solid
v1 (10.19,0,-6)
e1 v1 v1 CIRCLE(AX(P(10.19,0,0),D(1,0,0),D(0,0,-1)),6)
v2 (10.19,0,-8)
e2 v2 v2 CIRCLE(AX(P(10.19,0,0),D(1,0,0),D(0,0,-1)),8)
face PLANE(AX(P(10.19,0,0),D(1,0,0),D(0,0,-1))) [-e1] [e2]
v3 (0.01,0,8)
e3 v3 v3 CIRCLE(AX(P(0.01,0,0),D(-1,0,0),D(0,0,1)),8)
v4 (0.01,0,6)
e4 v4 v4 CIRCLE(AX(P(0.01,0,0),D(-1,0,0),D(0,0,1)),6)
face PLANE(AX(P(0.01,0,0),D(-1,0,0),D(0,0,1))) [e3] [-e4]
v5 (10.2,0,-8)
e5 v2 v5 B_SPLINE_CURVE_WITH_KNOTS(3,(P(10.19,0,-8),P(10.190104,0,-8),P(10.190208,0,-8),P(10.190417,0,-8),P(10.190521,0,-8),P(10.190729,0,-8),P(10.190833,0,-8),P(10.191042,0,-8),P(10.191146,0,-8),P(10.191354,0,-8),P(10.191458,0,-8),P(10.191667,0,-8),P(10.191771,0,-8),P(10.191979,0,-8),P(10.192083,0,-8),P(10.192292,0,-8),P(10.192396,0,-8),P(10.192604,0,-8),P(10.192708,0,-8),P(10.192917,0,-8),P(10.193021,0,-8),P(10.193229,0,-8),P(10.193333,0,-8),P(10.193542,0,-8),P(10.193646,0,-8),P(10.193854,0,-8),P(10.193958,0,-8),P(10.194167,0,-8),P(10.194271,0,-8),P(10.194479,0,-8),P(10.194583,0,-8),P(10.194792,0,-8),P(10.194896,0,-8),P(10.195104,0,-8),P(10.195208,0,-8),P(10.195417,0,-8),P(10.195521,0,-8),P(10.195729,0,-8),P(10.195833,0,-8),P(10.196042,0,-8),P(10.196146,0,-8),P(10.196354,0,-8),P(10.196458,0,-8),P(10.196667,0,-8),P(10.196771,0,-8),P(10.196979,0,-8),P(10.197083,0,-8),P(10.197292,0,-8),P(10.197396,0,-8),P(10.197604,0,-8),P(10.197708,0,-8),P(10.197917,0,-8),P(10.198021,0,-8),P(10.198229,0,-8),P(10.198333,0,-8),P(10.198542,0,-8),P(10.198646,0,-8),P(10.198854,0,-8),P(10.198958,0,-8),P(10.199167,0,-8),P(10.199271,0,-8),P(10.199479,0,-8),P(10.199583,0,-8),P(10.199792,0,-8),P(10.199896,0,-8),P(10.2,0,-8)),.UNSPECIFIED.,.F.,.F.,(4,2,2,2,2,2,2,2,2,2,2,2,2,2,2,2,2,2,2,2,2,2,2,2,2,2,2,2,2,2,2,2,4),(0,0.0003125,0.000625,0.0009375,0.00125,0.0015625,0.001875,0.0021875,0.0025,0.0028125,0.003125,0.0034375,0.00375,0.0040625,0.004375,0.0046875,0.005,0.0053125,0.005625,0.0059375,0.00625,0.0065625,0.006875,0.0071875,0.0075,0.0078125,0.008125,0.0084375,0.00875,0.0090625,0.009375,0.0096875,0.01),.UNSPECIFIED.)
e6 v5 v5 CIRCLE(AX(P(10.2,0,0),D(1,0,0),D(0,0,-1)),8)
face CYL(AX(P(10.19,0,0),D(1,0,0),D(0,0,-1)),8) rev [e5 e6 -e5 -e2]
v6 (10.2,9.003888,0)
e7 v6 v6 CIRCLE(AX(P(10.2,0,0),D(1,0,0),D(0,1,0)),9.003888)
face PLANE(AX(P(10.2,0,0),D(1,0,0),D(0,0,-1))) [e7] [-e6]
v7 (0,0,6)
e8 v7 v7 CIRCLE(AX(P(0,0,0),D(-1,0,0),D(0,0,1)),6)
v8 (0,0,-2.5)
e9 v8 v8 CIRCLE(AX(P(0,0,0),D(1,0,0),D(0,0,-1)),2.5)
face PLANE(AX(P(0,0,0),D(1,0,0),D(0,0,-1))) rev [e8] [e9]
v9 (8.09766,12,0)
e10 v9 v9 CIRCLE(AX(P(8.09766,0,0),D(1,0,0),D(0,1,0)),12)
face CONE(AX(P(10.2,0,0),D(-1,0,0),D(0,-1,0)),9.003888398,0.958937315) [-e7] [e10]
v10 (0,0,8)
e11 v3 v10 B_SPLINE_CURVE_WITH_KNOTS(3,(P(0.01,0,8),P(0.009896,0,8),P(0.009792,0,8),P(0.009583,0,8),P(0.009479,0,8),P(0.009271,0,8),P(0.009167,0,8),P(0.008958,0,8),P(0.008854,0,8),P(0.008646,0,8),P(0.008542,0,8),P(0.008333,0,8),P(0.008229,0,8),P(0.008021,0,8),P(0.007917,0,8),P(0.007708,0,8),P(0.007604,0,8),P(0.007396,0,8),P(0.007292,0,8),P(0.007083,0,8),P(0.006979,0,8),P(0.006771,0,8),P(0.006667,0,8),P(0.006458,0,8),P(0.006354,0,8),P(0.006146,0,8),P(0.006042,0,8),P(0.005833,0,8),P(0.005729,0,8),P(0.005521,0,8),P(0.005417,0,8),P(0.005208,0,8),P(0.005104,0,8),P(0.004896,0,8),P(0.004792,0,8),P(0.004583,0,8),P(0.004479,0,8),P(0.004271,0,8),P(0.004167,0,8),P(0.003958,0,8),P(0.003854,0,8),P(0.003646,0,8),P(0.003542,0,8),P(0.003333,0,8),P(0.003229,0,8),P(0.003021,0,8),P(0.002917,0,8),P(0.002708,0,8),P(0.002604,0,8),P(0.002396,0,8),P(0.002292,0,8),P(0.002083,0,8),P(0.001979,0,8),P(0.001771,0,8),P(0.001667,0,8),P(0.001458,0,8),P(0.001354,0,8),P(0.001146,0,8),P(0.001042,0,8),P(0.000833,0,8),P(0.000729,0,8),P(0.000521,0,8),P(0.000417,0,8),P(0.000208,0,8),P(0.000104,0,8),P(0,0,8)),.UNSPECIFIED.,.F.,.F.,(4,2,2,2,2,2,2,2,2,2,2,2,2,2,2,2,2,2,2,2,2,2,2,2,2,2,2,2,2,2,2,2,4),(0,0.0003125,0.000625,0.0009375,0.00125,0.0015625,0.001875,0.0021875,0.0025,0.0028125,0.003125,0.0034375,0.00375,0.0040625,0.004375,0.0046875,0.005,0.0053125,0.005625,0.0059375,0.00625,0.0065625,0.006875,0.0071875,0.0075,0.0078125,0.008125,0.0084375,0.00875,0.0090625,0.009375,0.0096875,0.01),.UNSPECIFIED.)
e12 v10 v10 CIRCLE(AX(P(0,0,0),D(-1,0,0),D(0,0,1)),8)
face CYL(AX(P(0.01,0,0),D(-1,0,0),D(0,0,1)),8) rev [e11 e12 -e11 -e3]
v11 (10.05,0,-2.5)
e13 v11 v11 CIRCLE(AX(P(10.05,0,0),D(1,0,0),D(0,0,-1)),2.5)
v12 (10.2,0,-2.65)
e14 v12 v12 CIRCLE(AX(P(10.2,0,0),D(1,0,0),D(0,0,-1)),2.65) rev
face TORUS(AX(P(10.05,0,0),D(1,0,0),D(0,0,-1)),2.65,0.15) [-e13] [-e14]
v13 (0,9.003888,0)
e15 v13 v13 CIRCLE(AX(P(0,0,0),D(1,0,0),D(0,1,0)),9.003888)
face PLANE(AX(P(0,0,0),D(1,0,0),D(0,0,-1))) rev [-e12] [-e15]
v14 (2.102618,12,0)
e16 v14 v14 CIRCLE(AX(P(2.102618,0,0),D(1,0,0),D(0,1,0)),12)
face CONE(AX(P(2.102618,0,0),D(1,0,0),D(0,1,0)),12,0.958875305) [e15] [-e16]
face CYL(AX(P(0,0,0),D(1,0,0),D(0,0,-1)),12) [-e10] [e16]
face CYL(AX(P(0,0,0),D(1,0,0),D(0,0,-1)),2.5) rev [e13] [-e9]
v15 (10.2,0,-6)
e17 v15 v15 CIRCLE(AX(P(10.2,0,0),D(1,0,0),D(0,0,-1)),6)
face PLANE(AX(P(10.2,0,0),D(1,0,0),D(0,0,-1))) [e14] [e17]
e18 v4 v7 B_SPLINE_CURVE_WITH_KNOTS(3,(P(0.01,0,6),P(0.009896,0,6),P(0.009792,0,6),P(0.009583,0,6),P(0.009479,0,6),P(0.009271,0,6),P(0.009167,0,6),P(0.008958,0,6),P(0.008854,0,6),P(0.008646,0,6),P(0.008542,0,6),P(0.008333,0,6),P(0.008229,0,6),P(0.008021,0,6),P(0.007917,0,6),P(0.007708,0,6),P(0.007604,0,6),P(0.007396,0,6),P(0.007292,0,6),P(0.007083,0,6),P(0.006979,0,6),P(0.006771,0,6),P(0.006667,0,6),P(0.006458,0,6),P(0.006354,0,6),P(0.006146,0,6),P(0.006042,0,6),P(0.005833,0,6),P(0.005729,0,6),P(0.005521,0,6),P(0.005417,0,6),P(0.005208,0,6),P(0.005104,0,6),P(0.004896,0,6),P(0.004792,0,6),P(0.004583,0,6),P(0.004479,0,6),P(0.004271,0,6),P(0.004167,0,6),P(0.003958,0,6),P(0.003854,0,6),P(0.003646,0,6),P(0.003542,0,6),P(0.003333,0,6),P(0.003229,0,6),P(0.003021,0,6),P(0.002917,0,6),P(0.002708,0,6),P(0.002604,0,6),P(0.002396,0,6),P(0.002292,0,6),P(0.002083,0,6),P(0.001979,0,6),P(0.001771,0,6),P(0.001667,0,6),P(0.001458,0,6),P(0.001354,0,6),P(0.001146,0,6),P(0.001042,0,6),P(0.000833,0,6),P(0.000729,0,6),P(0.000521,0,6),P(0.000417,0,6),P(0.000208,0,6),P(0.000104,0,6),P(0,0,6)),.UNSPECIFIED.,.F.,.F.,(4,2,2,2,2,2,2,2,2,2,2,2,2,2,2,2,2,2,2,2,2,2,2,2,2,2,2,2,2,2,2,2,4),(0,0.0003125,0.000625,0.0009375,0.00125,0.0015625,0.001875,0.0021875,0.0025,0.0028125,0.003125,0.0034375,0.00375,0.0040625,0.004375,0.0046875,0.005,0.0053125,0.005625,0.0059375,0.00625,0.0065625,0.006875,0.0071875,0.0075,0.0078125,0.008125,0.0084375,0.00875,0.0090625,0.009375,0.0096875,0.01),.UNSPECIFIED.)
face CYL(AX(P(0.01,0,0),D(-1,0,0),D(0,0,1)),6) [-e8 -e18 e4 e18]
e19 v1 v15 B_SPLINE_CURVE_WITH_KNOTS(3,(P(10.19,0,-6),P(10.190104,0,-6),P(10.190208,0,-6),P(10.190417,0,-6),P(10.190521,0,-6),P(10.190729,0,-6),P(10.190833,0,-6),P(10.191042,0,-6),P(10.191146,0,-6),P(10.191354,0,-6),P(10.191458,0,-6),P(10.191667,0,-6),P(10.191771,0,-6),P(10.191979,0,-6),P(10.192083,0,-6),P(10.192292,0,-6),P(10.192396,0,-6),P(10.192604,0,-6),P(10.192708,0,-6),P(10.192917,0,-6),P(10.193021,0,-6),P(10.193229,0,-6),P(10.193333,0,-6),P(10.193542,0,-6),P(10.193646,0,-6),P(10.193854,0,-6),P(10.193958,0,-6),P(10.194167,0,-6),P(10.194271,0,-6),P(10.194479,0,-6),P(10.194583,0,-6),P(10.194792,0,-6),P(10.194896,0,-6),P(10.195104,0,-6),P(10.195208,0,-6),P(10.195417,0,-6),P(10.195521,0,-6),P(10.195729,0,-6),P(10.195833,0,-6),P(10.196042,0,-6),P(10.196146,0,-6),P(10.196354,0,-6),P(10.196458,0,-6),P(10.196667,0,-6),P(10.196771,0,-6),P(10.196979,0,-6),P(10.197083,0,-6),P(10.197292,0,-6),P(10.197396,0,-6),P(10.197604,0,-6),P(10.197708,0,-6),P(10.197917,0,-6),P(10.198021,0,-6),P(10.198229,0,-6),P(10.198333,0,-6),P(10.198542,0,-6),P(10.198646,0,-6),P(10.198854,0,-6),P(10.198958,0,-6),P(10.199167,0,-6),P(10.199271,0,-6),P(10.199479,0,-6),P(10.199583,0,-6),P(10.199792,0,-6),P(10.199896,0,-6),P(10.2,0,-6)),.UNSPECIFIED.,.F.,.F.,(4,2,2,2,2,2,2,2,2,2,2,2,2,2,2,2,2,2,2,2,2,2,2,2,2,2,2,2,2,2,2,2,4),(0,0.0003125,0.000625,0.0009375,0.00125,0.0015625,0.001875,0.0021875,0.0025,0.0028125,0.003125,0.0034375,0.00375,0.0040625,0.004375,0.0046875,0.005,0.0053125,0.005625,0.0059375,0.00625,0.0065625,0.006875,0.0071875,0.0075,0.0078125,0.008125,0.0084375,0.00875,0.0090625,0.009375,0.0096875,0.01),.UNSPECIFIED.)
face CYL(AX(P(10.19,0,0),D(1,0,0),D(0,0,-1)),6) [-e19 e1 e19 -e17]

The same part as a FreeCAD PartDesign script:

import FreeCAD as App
import Part
import Sketcher
from FreeCAD import Vector


def edges_at(feature, points):
    """Names of the edges that pass closest to the given points."""
    edges = feature.Shape.Edges
    near = lambda p: min(range(len(edges)), key=lambda i: edges[i].distToShape(Part.Vertex(*p))[0])
    return sorted({f"Edge{near(p) + 1}" for p in points})


def add_polygon(sketch, points):
    """Adds a closed chain of lines whose ends are joined by coincident constraints."""
    first, n = sketch.GeometryCount, len(points)
    for a, b in zip(points, points[1:] + points[:1]):
        sketch.addGeometry(Part.LineSegment(App.Vector(*a, 0), App.Vector(*b, 0)), False)
    for i in range(n):
        sketch.addConstraint(Sketcher.Constraint("Coincident", first + i, 2, first + (i + 1) % n, 1))

doc = App.newDocument("Part")
body = doc.addObject("PartDesign::Body", "Body")

# Sketch on YZ plane
sketch1 = body.newObject("Sketcher::SketchObject", "Sketch")
sketch1.AttachmentSupport = (doc.getObject("YZ_Plane"), [""])
sketch1.MapMode = "FlatFace"
sketch1.AttachmentOffset = App.Placement(Vector(0, 0, 5.1), App.Rotation())
sketch1.addGeometry(Part.Circle(Vector(0, 0, 0), Vector(0, 0, 1), 12), False)
sketch1.addConstraint([
    Sketcher.Constraint("Coincident", 0, 3, -1, 1),
    Sketcher.Constraint("Diameter", 0, 24.0),
])
pad1 = body.newObject("PartDesign::Pad", "Pad")
pad1.Profile = sketch1
pad1.Type = "TwoLengths"
pad1.Length = 5.1
pad1.Length2 = 5.1

# Sketch on YZ plane
sketch2 = body.newObject("Sketcher::SketchObject", "Sketch001")
sketch2.AttachmentSupport = (doc.getObject("YZ_Plane"), [""])
sketch2.MapMode = "FlatFace"
sketch2.AttachmentOffset = App.Placement(Vector(0, 0, 10.2), App.Rotation())
sketch2.addGeometry(Part.Circle(Vector(0, 0, 0), Vector(0, 0, 1), 2.5), False)
sketch2.addConstraint([
    Sketcher.Constraint("Coincident", 0, 3, -1, 1),
    Sketcher.Constraint("Diameter", 0, 5.0),
])
pocket1 = body.newObject("PartDesign::Pocket", "Pocket")
pocket1.Profile = sketch2
pocket1.Type = "ThroughAll"

# Sketch on XY plane
sketch3 = body.newObject("Sketcher::SketchObject", "Sketch002")
sketch3.AttachmentSupport = (doc.getObject("XY_Plane"), [""])
sketch3.MapMode = "FlatFace"
add_polygon(sketch3, [(2.102618, -12), (0, -9.003888), (0, -12), (2.020449, -12.310785), (7.948692, -12.310785), (10.2, -12), (10.2, -9.003888), (8.09766, -12)])  # lines 0-7
add_polygon(sketch3, [(10.2, 12), (7.948692, 12.310785), (2.020449, 12.310785), (0, 12), (0, 9.003888), (2.102618, 12), (8.09766, 12), (10.2, 9.003888)])  # lines 8-15
sketch3.addConstraint([
    Sketcher.Constraint("Vertical", 1),
    Sketcher.Constraint("Horizontal", 3),
    Sketcher.Constraint("Vertical", 5),
    Sketcher.Constraint("Horizontal", 7),
    Sketcher.Constraint("Horizontal", 9),
    Sketcher.Constraint("Vertical", 11),
    Sketcher.Constraint("Horizontal", 13),
    Sketcher.Constraint("Vertical", 15),
    Sketcher.Constraint("Symmetric", 1, 2, 10, 2, -1, 1),
    Sketcher.Constraint("Symmetric", 3, 2, 8, 2, -1),
    Sketcher.Constraint("Symmetric", 0, 2, 11, 2, -1),
    Sketcher.Constraint("Symmetric", 7, 2, 12, 2, -1),
    Sketcher.Constraint("Symmetric", 5, 2, 14, 2, -1),
    Sketcher.Constraint("Horizontal", 1, 2, 4, 2),
    Sketcher.Constraint("Horizontal", 0, 2, 5, 2),
    Sketcher.Constraint("Horizontal", 4, 2, 6, 2),
    Sketcher.Constraint("Horizontal", 13, 2, 15, 2),
    Sketcher.Constraint("Vertical", 2, 2, 9, 2),
    Sketcher.Constraint("Vertical", 6, 2, 13, 2),
    Sketcher.Constraint("DistanceY", 1, 2, -1, 1, 12.0),
    Sketcher.Constraint("DistanceX", -1, 1, 4, 2, 10.2),
    Sketcher.Constraint("DistanceY", 1, 2, 1, 1, 2.996112),
    Sketcher.Constraint("Distance", 2, 2.044211),
    Sketcher.Constraint("Distance", 4, 2.272659),
    Sketcher.Constraint("DistanceX", 3, 1, 3, 2, 5.928243),
    Sketcher.Constraint("DistanceX", 7, 2, 7, 1, 5.995042),
    Sketcher.Constraint("DistanceX", -1, 1, 6, 2, 8.09766),
])
groove = body.newObject("PartDesign::Groove", "Groove")
groove.Profile = sketch3
groove.ReferenceAxis = (sketch3, ["H_Axis"])
groove.Angle = 360
doc.recompute()

fillet = body.newObject("PartDesign::Fillet", "Fillet")
fillet.Base = (groove, edges_at(groove, [(10.2, 0, 2.5)]))
fillet.Radius = 0.15

# Sketch on YZ plane
sketch4 = body.newObject("Sketcher::SketchObject", "Sketch003")
sketch4.AttachmentSupport = (doc.getObject("YZ_Plane"), [""])
sketch4.MapMode = "FlatFace"
sketch4.AttachmentOffset = App.Placement(Vector(0, 0, 10.2), App.Rotation())
sketch4.addGeometry([
    Part.Circle(Vector(0, 0, 0), Vector(0, 0, 1), 8),
    Part.Circle(Vector(0, 0, 0), Vector(0, 0, 1), 6),
], False)
sketch4.addConstraint([
    Sketcher.Constraint("Coincident", 0, 3, -1, 1),
    Sketcher.Constraint("Coincident", 1, 3, -1, 1),
    Sketcher.Constraint("Diameter", 0, 16.0),
    Sketcher.Constraint("Diameter", 1, 12.0),
])
pocket2 = body.newObject("PartDesign::Pocket", "Pocket001")
pocket2.Profile = sketch4
pocket2.Length = 0.01

# Sketch on YZ plane
sketch5 = body.newObject("Sketcher::SketchObject", "Sketch004")
sketch5.AttachmentSupport = (doc.getObject("YZ_Plane"), [""])
sketch5.MapMode = "FlatFace"
sketch5.AttachmentOffset = App.Placement(Vector(0, 0, 0.01), App.Rotation())
sketch5.addGeometry([
    Part.Circle(Vector(0, 0, 0), Vector(0, 0, 1), 8),
    Part.Circle(Vector(0, 0, 0), Vector(0, 0, 1), 6),
], False)
sketch5.addConstraint([
    Sketcher.Constraint("Coincident", 0, 3, -1, 1),
    Sketcher.Constraint("Coincident", 1, 3, -1, 1),
    Sketcher.Constraint("Diameter", 0, 16.0),
    Sketcher.Constraint("Diameter", 1, 12.0),
])
pocket3 = body.newObject("PartDesign::Pocket", "Pocket002")
pocket3.Profile = sketch5
pocket3.Length = 0.01

doc.recompute()
